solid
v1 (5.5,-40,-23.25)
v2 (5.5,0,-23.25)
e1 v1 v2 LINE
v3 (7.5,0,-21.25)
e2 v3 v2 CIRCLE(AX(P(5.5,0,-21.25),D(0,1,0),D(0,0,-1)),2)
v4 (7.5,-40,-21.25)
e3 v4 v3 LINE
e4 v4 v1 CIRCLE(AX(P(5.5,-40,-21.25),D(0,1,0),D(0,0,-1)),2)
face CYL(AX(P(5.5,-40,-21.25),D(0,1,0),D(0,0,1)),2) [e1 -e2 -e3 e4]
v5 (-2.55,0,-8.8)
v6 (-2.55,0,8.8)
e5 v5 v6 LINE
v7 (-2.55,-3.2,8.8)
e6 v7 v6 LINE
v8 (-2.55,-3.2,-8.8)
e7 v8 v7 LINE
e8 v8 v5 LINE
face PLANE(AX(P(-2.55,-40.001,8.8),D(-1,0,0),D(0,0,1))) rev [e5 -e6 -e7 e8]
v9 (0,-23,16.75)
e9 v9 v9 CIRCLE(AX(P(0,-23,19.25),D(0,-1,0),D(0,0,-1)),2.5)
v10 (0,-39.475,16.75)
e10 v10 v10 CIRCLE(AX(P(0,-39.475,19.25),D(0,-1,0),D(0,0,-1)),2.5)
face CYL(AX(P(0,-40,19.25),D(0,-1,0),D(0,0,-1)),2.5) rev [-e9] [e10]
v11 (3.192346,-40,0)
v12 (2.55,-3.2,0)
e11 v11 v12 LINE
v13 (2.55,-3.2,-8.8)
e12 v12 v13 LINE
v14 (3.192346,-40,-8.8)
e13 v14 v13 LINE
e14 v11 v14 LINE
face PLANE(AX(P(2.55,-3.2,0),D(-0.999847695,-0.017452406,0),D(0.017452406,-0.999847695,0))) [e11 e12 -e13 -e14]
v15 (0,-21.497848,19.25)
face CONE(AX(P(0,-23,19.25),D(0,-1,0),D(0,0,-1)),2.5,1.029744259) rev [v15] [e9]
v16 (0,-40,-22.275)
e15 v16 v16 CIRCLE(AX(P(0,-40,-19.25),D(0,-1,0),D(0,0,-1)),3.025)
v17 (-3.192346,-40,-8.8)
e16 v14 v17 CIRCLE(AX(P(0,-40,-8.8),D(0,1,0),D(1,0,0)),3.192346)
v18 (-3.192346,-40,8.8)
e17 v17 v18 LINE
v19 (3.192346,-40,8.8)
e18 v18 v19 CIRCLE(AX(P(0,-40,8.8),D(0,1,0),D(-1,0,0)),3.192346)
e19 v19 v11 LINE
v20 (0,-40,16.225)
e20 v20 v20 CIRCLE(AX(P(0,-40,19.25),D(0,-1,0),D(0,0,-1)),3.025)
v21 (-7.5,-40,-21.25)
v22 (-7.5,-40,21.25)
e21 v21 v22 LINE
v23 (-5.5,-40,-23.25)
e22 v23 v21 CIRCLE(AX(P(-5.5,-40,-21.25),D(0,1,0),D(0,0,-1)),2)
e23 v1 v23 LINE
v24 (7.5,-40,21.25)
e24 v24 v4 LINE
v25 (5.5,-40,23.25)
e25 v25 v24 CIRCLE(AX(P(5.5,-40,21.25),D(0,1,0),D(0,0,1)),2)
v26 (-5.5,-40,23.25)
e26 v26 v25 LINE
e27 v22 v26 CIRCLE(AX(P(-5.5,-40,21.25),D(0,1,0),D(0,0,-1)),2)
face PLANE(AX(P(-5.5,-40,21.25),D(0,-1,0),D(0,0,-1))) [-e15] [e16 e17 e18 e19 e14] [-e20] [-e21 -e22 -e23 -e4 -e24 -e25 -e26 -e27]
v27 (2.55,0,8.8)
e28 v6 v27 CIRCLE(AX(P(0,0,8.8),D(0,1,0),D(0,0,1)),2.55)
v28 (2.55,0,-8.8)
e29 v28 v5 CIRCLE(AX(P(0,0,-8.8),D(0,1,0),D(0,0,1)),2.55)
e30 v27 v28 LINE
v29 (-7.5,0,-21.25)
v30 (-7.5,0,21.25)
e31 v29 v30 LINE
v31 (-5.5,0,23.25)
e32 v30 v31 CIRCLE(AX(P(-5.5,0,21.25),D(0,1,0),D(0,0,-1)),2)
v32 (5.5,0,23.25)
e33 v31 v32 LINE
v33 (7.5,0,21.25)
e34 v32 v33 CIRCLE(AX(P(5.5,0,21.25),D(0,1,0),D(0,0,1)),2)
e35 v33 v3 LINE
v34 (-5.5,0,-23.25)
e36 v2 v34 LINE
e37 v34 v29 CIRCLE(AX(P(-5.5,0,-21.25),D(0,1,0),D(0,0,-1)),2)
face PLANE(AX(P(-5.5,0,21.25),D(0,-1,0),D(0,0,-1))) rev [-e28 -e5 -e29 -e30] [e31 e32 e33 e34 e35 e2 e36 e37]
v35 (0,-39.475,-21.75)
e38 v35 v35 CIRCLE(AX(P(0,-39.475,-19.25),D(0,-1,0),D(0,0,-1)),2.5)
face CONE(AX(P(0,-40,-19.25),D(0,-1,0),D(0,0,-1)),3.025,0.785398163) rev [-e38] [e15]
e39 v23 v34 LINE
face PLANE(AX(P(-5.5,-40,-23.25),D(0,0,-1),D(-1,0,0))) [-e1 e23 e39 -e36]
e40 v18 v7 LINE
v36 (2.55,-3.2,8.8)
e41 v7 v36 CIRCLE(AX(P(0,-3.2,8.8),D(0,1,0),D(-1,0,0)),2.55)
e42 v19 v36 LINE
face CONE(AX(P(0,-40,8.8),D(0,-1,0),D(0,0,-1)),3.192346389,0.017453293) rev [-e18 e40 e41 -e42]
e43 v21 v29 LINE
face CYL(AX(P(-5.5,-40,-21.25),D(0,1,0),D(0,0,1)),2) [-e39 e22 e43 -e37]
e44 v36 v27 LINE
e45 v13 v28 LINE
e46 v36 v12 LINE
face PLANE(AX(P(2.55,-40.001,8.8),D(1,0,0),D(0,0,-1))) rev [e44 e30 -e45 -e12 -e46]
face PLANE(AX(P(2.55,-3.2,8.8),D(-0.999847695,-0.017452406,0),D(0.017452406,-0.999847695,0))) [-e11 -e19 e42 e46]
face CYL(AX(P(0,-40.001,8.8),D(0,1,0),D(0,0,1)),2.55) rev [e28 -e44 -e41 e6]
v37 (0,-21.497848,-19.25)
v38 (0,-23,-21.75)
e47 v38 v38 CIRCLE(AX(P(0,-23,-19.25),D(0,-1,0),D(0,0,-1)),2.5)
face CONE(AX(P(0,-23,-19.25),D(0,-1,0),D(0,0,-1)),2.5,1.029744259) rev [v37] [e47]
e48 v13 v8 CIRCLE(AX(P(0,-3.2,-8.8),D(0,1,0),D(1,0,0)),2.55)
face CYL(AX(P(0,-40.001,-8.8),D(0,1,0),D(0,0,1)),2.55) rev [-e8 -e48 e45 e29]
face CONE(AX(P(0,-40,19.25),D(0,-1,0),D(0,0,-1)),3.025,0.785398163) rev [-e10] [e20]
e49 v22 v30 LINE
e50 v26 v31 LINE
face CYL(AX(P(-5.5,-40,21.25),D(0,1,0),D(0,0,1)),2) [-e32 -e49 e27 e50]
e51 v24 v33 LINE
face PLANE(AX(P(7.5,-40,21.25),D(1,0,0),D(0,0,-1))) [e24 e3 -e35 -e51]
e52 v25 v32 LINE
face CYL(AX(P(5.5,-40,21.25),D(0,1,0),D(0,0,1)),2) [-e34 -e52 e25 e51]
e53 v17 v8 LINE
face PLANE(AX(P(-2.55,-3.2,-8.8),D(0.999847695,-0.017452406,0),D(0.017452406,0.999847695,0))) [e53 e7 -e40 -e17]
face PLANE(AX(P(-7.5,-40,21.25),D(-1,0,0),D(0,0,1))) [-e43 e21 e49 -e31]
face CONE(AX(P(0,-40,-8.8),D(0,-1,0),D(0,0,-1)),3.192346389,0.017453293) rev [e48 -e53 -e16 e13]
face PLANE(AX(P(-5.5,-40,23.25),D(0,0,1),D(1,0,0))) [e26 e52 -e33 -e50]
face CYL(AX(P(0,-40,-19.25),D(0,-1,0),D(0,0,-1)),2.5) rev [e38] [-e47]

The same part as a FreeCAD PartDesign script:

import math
import FreeCAD as App
import Part
import Sketcher
Q = App.Units.Quantity

doc = App.newDocument("Part")
body = doc.addObject("PartDesign::Body", "Body")

sketch1 = body.newObject("Sketcher::SketchObject", "Sketch")
sketch1.AttachmentSupport = (doc.getObject("XZ_Plane"), [""])
sketch1.MapMode = "FlatFace"
sketch1.addGeometry(Part.LineSegment(App.Vector(-5.5, 23.25, 0), App.Vector(5.5, 23.25, 0)), False)
sketch1.addGeometry(Part.ArcOfCircle(Part.Circle(App.Vector(5.5, 21.25, 0), App.Vector(0, 0, 1), 2), math.radians(0), math.radians(90)), False)
sketch1.addGeometry(Part.LineSegment(App.Vector(7.5, 21.25, 0), App.Vector(7.5, -21.25, 0)), False)
sketch1.addGeometry(Part.ArcOfCircle(Part.Circle(App.Vector(5.5, -21.25, 0), App.Vector(0, 0, 1), 2), math.radians(-90), math.radians(0)), False)
sketch1.addGeometry(Part.LineSegment(App.Vector(5.5, -23.25, 0), App.Vector(-5.5, -23.25, 0)), False)
sketch1.addGeometry(Part.ArcOfCircle(Part.Circle(App.Vector(-5.5, -21.25, 0), App.Vector(0, 0, 1), 2), math.radians(-180), math.radians(-90)), False)
sketch1.addGeometry(Part.LineSegment(App.Vector(-7.5, -21.25, 0), App.Vector(-7.5, 21.25, 0)), False)
sketch1.addGeometry(Part.ArcOfCircle(Part.Circle(App.Vector(-5.5, 21.25, 0), App.Vector(0, 0, 1), 2), math.radians(90), math.radians(180)), False)
sketch1.addConstraint(Sketcher.Constraint("Tangent", 0, 2, 1, 2))
sketch1.addConstraint(Sketcher.Constraint("Tangent", 1, 1, 2, 1))
sketch1.addConstraint(Sketcher.Constraint("Tangent", 2, 2, 3, 2))
sketch1.addConstraint(Sketcher.Constraint("Tangent", 3, 1, 4, 1))
sketch1.addConstraint(Sketcher.Constraint("Tangent", 4, 2, 5, 2))
sketch1.addConstraint(Sketcher.Constraint("Tangent", 5, 1, 6, 1))
sketch1.addConstraint(Sketcher.Constraint("Tangent", 6, 2, 7, 2))
sketch1.addConstraint(Sketcher.Constraint("Tangent", 7, 1, 0, 1))
sketch1.addConstraint(Sketcher.Constraint("Horizontal", 0))
sketch1.addConstraint(Sketcher.Constraint("Vertical", 2))
sketch1.addConstraint(Sketcher.Constraint("Horizontal", 4))
sketch1.addConstraint(Sketcher.Constraint("Vertical", 6))
sketch1.addConstraint(Sketcher.Constraint("Equal", 1, 3))
sketch1.addConstraint(Sketcher.Constraint("Equal", 3, 5))
sketch1.addConstraint(Sketcher.Constraint("Equal", 5, 7))
sketch1.addConstraint(Sketcher.Constraint("Symmetric", 1, 3, 5, 3, -1, 1))
sketch1.addConstraint(Sketcher.Constraint("Radius", 1, Q("2 mm")))
sketch1.addConstraint(Sketcher.Constraint("DistanceX", 0, 1, 0, 2, Q("11 mm")))
sketch1.addConstraint(Sketcher.Constraint("DistanceY", 2, 2, 2, 1, Q("42.5 mm")))
pad1 = body.newObject("PartDesign::Pad", "Pad")
pad1.Profile = sketch1
pad1.Length = 40

sketch2 = body.newObject("Sketcher::SketchObject", "Sketch001")
sketch2.AttachmentSupport = (doc.getObject("XZ_Plane"), [""])
sketch2.MapMode = "FlatFace"
sketch2.addGeometry(Part.LineSegment(App.Vector(-2.55, -8.8, 0), App.Vector(-2.55, 8.8, 0)), False)
sketch2.addGeometry(Part.ArcOfCircle(Part.Circle(App.Vector(0, 8.8, 0), App.Vector(0, 0, 1), 2.55), math.radians(0), math.radians(180)), False)
sketch2.addGeometry(Part.LineSegment(App.Vector(2.55, 8.8, 0), App.Vector(2.55, -8.8, 0)), False)
sketch2.addGeometry(Part.ArcOfCircle(Part.Circle(App.Vector(0, -8.8, 0), App.Vector(0, 0, 1), 2.55), math.radians(180), math.radians(360)), False)
sketch2.addConstraint(Sketcher.Constraint("Tangent", 0, 2, 1, 2))
sketch2.addConstraint(Sketcher.Constraint("Tangent", 1, 1, 2, 1))
sketch2.addConstraint(Sketcher.Constraint("Tangent", 2, 2, 3, 2))
sketch2.addConstraint(Sketcher.Constraint("Tangent", 3, 1, 0, 1))
sketch2.addConstraint(Sketcher.Constraint("Vertical", 0))
sketch2.addConstraint(Sketcher.Constraint("Vertical", 2))
sketch2.addConstraint(Sketcher.Constraint("Symmetric", 1, 3, 3, 3, -1, 1))
sketch2.addConstraint(Sketcher.Constraint("Radius", 1, Q("2.55 mm")))
sketch2.addConstraint(Sketcher.Constraint("DistanceY", 0, 1, 0, 2, Q("17.6 mm")))
pocket1 = body.newObject("PartDesign::Pocket", "Pocket")
pocket1.Profile = sketch2
pocket1.Type = "UpToFirst"
pocket1.Reversed = True

sketch3 = body.newObject("Sketcher::SketchObject", "Sketch002")
sketch3.AttachmentSupport = (doc.getObject("XY_Plane"), [""])
sketch3.MapMode = "FlatFace"
sketch3.addGeometry(Part.LineSegment(App.Vector(3.192346, -40, 0), App.Vector(2.55, -3.2, 0)), False)
sketch3.addGeometry(Part.LineSegment(App.Vector(2.55, -3.2, 0), App.Vector(2.55, -40, 0)), False)
sketch3.addGeometry(Part.LineSegment(App.Vector(2.55, -40, 0), App.Vector(3.192346, -40, 0)), False)
sketch3.addConstraint(Sketcher.Constraint("Coincident", 0, 2, 1, 1))
sketch3.addConstraint(Sketcher.Constraint("Coincident", 1, 2, 2, 1))
sketch3.addConstraint(Sketcher.Constraint("Coincident", 2, 2, 0, 1))
sketch3.addConstraint(Sketcher.Constraint("Vertical", 1))
sketch3.addConstraint(Sketcher.Constraint("Horizontal", 2))
sketch3.addConstraint(Sketcher.Constraint("Angle", 0, Q("91 deg")))
sketch3.addConstraint(Sketcher.Constraint("DistanceY", 1, 2, 1, 1, Q("36.8 mm")))
sketch3.addConstraint(Sketcher.Constraint("DistanceY", 1, 2, -1, 1, Q("40 mm")))
sketch3.addConstraint(Sketcher.Constraint("DistanceX", -1, 1, 0, 2, Q("2.55 mm")))

sketch4 = body.newObject("Sketcher::SketchObject", "Sketch003")
sketch4.AttachmentSupport = (doc.getObject("XZ_Plane"), [""])
sketch4.MapMode = "FlatFace"
sketch4.addGeometry(Part.LineSegment(App.Vector(-2.55, -8.8, 0), App.Vector(-2.55, 8.8, 0)), False)
sketch4.addGeometry(Part.ArcOfCircle(Part.Circle(App.Vector(0, 8.8, 0), App.Vector(0, 0, 1), 2.55), math.radians(0), math.radians(180)), False)
sketch4.addGeometry(Part.LineSegment(App.Vector(2.55, 8.8, 0), App.Vector(2.55, -8.8, 0)), False)
sketch4.addGeometry(Part.ArcOfCircle(Part.Circle(App.Vector(0, -8.8, 0), App.Vector(0, 0, 1), 2.55), math.radians(180), math.radians(360)), False)
sketch4.addConstraint(Sketcher.Constraint("Tangent", 0, 2, 1, 2))
sketch4.addConstraint(Sketcher.Constraint("Tangent", 1, 1, 2, 1))
sketch4.addConstraint(Sketcher.Constraint("Tangent", 2, 2, 3, 2))
sketch4.addConstraint(Sketcher.Constraint("Tangent", 3, 1, 0, 1))
sketch4.addConstraint(Sketcher.Constraint("Vertical", 0))
sketch4.addConstraint(Sketcher.Constraint("Vertical", 2))
sketch4.addConstraint(Sketcher.Constraint("Symmetric", 1, 3, 3, 3, -1, 1))
sketch4.addConstraint(Sketcher.Constraint("Radius", 1, Q("2.55 mm")))
sketch4.addConstraint(Sketcher.Constraint("DistanceY", 0, 1, 0, 2, Q("17.6 mm")))
doc.recompute()

subtractivepipe = body.newObject("PartDesign::SubtractivePipe", "SubtractivePipe")
subtractivepipe.Profile = sketch3
subtractivepipe.Spine = (sketch4, ["Edge1", "Edge2", "Edge3", "Edge4"])

sketch5 = body.newObject("Sketcher::SketchObject", "Sketch004")
sketch5.AttachmentSupport = (doc.getObject("XZ_Plane"), [""])
sketch5.MapMode = "FlatFace"
sketch5.AttachmentOffset = App.Placement(App.Vector(0, 0, 40), App.Rotation())
sketch5.addGeometry(Part.Circle(App.Vector(0, -19.25, 0), App.Vector(0, 0, 1), 2.5), False)
sketch5.addGeometry(Part.Circle(App.Vector(0, 19.25, 0), App.Vector(0, 0, 1), 2.5), False)
sketch5.addConstraint(Sketcher.Constraint("Equal", 0, 1))
sketch5.addConstraint(Sketcher.Constraint("Symmetric", 0, 3, 1, 3, -1, 1))
sketch5.addConstraint(Sketcher.Constraint("PointOnObject", 0, 3, -2))
sketch5.addConstraint(Sketcher.Constraint("Diameter", 0, Q("5 mm")))
sketch5.addConstraint(Sketcher.Constraint("DistanceY", 0, 3, 1, 3, Q("38.5 mm")))
doc.recompute()
hole = body.newObject("PartDesign::Hole", "Hole")
hole.Profile = sketch5
hole.ThreadType = "None"
hole.Diameter = 5
hole.DepthType = "Dimension"
hole.Depth = 17
hole.DrillPoint = "Angled"
hole.DrillPointAngle = 118
hole.HoleCutType = "Countersink"
hole.HoleCutDiameter = 6.05
hole.HoleCutCountersinkAngle = 90

doc.recompute()
